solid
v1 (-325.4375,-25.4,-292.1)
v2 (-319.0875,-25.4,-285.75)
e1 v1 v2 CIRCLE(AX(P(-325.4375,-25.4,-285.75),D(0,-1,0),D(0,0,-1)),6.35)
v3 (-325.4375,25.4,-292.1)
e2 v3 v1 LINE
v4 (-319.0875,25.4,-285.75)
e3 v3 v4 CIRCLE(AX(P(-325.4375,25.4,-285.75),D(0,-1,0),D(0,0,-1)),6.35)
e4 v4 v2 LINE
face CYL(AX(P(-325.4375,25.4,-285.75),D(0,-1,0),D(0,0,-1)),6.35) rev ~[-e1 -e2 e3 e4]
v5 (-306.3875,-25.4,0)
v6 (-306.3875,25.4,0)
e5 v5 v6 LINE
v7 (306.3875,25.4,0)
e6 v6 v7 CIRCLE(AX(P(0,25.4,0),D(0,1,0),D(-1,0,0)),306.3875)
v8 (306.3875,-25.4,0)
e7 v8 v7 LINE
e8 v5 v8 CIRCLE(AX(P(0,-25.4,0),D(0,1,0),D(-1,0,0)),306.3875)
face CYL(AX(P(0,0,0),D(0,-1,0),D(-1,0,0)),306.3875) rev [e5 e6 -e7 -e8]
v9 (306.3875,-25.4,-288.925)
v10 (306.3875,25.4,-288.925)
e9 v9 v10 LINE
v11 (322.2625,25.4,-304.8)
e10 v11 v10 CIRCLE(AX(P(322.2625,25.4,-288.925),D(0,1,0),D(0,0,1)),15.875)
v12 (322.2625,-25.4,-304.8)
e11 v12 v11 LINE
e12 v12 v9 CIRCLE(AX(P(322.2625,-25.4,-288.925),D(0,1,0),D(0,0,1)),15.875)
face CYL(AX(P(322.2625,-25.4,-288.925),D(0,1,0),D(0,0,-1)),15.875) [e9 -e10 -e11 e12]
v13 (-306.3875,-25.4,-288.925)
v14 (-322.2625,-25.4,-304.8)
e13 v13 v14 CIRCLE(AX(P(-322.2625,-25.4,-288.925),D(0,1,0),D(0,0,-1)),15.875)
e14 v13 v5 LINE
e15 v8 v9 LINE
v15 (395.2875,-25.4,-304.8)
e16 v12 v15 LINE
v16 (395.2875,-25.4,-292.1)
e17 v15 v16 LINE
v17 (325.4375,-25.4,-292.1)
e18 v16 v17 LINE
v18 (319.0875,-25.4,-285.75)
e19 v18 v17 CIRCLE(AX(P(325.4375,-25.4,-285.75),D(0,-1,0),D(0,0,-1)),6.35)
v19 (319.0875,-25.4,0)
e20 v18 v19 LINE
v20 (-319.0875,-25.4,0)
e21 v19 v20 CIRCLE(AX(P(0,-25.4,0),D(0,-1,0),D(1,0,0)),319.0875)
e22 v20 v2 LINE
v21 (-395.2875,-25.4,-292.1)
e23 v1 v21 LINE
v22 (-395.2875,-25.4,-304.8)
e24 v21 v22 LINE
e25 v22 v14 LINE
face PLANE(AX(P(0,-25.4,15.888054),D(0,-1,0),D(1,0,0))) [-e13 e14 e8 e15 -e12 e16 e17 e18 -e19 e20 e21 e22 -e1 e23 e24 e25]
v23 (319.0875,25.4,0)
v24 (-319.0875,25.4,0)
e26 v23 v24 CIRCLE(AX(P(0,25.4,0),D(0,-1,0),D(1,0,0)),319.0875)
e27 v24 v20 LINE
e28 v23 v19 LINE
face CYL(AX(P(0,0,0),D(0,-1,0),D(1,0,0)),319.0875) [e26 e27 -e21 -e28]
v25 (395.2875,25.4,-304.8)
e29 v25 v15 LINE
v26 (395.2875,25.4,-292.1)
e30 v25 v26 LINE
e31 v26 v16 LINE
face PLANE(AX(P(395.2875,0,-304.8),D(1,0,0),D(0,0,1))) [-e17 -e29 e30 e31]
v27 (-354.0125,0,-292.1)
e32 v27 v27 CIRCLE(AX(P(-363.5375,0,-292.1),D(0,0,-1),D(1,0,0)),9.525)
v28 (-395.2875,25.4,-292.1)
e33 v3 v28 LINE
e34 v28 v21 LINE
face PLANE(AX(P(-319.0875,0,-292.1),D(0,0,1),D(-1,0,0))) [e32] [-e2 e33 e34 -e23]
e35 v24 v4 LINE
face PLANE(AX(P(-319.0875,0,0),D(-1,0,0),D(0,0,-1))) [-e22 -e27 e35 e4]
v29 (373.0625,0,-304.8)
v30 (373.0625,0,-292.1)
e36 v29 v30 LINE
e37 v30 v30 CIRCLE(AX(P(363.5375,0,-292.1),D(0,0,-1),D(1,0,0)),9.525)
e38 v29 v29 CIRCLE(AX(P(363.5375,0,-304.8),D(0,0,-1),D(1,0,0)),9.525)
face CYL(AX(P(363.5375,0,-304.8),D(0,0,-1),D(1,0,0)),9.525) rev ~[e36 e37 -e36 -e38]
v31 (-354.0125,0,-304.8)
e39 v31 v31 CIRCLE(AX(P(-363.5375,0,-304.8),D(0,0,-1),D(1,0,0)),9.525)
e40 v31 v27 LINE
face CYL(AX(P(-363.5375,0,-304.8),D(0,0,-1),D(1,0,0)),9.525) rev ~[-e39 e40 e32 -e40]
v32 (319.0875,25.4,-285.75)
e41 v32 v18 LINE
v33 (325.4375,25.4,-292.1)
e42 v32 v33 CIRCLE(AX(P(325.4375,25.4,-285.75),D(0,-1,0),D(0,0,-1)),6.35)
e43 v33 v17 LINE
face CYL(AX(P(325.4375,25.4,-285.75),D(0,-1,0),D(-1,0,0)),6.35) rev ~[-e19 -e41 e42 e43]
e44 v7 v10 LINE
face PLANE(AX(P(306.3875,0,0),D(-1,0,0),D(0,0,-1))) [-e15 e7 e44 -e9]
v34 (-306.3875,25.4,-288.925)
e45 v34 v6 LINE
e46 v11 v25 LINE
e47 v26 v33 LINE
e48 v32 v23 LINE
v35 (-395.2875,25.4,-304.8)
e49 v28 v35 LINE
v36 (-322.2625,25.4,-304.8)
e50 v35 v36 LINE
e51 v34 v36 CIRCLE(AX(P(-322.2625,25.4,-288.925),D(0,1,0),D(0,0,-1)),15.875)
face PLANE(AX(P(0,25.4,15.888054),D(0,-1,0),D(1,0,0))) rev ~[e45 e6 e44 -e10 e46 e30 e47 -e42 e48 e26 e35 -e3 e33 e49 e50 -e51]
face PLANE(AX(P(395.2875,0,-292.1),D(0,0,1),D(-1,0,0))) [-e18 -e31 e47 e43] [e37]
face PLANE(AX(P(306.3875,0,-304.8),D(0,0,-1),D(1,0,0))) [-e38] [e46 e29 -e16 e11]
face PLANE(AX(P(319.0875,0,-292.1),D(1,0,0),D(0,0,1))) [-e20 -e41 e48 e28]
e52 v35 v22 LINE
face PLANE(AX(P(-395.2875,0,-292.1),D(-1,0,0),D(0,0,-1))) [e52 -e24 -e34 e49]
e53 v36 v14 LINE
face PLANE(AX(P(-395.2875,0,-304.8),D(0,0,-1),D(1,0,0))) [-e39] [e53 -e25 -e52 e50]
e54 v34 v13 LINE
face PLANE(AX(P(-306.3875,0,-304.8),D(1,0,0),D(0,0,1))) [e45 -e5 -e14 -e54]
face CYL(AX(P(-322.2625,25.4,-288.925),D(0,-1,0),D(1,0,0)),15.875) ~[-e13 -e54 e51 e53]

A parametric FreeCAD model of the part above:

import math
import FreeCAD as App
import Part
import Sketcher
from FreeCAD import Vector
Q = App.Units.Quantity


def edges_at(feature, points):
    """Names of the edges that pass closest to the given points."""
    edges = feature.Shape.Edges
    near = lambda p: min(range(len(edges)), key=lambda i: edges[i].distToShape(Part.Vertex(*p))[0])
    return sorted({f"Edge{near(p) + 1}" for p in points})

doc = App.newDocument("Part")
body = doc.addObject("PartDesign::Body", "Body")

sketch1 = body.newObject("Sketcher::SketchObject", "Sketch")
sketch1.AttachmentSupport = (doc.getObject("XZ_Plane"), [""])
sketch1.MapMode = "FlatFace"
sketch1.addGeometry(Part.LineSegment(Vector(306, -305, 0), Vector(395, -305, 0)), False)
sketch1.addGeometry(Part.LineSegment(Vector(395, -305, 0), Vector(395, -292, 0)), False)
sketch1.addGeometry(Part.LineSegment(Vector(395, -292, 0), Vector(319, -292, 0)), False)
sketch1.addGeometry(Part.LineSegment(Vector(319, -292, 0), Vector(319, 0, 0)), False)
sketch1.addGeometry(Part.ArcOfCircle(Part.Circle(Vector(0, 0, 0), Vector(0, 0, 1), 319), math.radians(0), math.radians(180)), False)
sketch1.addGeometry(Part.LineSegment(Vector(-319, 0, 0), Vector(-319, -292, 0)), False)
sketch1.addGeometry(Part.LineSegment(Vector(-319, -292, 0), Vector(-395, -292, 0)), False)
sketch1.addGeometry(Part.LineSegment(Vector(-395, -292, 0), Vector(-395, -305, 0)), False)
sketch1.addGeometry(Part.LineSegment(Vector(-395, -305, 0), Vector(-306, -305, 0)), False)
sketch1.addGeometry(Part.LineSegment(Vector(-306, -305, 0), Vector(-306, 0, 0)), False)
sketch1.addGeometry(Part.ArcOfCircle(Part.Circle(Vector(0, 0, 0), Vector(0, 0, 1), 306), math.radians(0), math.radians(180)), False)
sketch1.addGeometry(Part.LineSegment(Vector(306, 0, 0), Vector(306, -305, 0)), False)
sketch1.addConstraint(Sketcher.Constraint("Coincident", 0, 2, 1, 1))
sketch1.addConstraint(Sketcher.Constraint("Coincident", 1, 2, 2, 1))
sketch1.addConstraint(Sketcher.Constraint("Coincident", 2, 2, 3, 1))
sketch1.addConstraint(Sketcher.Constraint("Tangent", 3, 2, 4, 1))
sketch1.addConstraint(Sketcher.Constraint("Tangent", 4, 2, 5, 1))
sketch1.addConstraint(Sketcher.Constraint("Coincident", 5, 2, 6, 1))
sketch1.addConstraint(Sketcher.Constraint("Coincident", 6, 2, 7, 1))
sketch1.addConstraint(Sketcher.Constraint("Coincident", 7, 2, 8, 1))
sketch1.addConstraint(Sketcher.Constraint("Coincident", 8, 2, 9, 1))
sketch1.addConstraint(Sketcher.Constraint("Tangent", 9, 2, 10, 2))
sketch1.addConstraint(Sketcher.Constraint("Tangent", 10, 1, 11, 1))
sketch1.addConstraint(Sketcher.Constraint("Coincident", 11, 2, 0, 1))
sketch1.addConstraint(Sketcher.Constraint("Horizontal", 0))
sketch1.addConstraint(Sketcher.Constraint("Vertical", 1))
sketch1.addConstraint(Sketcher.Constraint("Horizontal", 2))
sketch1.addConstraint(Sketcher.Constraint("Vertical", 3))
sketch1.addConstraint(Sketcher.Constraint("Vertical", 5))
sketch1.addConstraint(Sketcher.Constraint("Horizontal", 6))
sketch1.addConstraint(Sketcher.Constraint("Vertical", 7))
sketch1.addConstraint(Sketcher.Constraint("Horizontal", 8))
sketch1.addConstraint(Sketcher.Constraint("Vertical", 9))
sketch1.addConstraint(Sketcher.Constraint("Vertical", 11))
sketch1.addConstraint(Sketcher.Constraint("Coincident", 4, 3, -1, 1))
sketch1.addConstraint(Sketcher.Constraint("Coincident", 10, 3, -1, 1))
sketch1.addConstraint(Sketcher.Constraint("Symmetric", 1, 2, 6, 2, -2))
sketch1.addConstraint(Sketcher.Constraint("Horizontal", 0, 2, 7, 2))
sketch1.addConstraint(Sketcher.Constraint("DistanceX", 2, 2, 2, 1, Q("3 in")))
sketch1.addConstraint(Sketcher.Constraint("DistanceY", 9, 1, 9, 2, Q("12 in")))
sketch1.addConstraint(Sketcher.Constraint("DistanceX", 0, 1, 0, 2, Q("3.5 in")))
sketch1.addConstraint(Sketcher.Constraint("DistanceY", 1, 1, 1, 2, Q("0.5 in")))
sketch1.addConstraint(Sketcher.Constraint("Radius", 4, Q("12.5625 in")))
pad1 = body.newObject("PartDesign::Pad", "Pad")
pad1.Profile = sketch1
pad1.Length = Q("2 in")
pad1.Midplane = True
doc.recompute()

fillet = body.newObject("PartDesign::Fillet", "Fillet")
fillet.Base = (pad1, edges_at(pad1, [(-319.087, 0, -292.1), (319.087, 0, -292.1)]))
fillet.Radius = Q("0.25 in")
doc.recompute()

fillet2 = body.newObject("PartDesign::Fillet", "Fillet001")
fillet2.Base = (fillet, edges_at(fillet, [(306.387, 0, -304.8), (-306.387, 0, -304.8)]))
fillet2.Radius = Q("0.625 in")

sketch2 = body.newObject("Sketcher::SketchObject", "Sketch001")
sketch2.AttachmentSupport = (doc.getObject("XY_Plane"), [""])
sketch2.MapMode = "FlatFace"
sketch2.AttachmentOffset = App.Placement(Vector(0, 0, -12 * 25.4), App.Rotation())
sketch2.addGeometry(Part.Circle(Vector(-364, 0, 0), Vector(0, 0, 1), 10), False)
sketch2.addGeometry(Part.Circle(Vector(364, 0, 0), Vector(0, 0, 1), 10), False)
sketch2.addConstraint(Sketcher.Constraint("Equal", 0, 1))
sketch2.addConstraint(Sketcher.Constraint("Symmetric", 0, 3, 1, 3, -1, 1))
sketch2.addConstraint(Sketcher.Constraint("PointOnObject", 0, 3, -1))
sketch2.addConstraint(Sketcher.Constraint("Diameter", 0, Q("0.75 in")))
sketch2.addConstraint(Sketcher.Constraint("DistanceX", 0, 3, -1, 1, Q("14.3125 in")))
pocket1 = body.newObject("PartDesign::Pocket", "Pocket")
pocket1.Profile = sketch2
pocket1.Length = Q("1 in")
pocket1.Reversed = True

doc.recompute()
